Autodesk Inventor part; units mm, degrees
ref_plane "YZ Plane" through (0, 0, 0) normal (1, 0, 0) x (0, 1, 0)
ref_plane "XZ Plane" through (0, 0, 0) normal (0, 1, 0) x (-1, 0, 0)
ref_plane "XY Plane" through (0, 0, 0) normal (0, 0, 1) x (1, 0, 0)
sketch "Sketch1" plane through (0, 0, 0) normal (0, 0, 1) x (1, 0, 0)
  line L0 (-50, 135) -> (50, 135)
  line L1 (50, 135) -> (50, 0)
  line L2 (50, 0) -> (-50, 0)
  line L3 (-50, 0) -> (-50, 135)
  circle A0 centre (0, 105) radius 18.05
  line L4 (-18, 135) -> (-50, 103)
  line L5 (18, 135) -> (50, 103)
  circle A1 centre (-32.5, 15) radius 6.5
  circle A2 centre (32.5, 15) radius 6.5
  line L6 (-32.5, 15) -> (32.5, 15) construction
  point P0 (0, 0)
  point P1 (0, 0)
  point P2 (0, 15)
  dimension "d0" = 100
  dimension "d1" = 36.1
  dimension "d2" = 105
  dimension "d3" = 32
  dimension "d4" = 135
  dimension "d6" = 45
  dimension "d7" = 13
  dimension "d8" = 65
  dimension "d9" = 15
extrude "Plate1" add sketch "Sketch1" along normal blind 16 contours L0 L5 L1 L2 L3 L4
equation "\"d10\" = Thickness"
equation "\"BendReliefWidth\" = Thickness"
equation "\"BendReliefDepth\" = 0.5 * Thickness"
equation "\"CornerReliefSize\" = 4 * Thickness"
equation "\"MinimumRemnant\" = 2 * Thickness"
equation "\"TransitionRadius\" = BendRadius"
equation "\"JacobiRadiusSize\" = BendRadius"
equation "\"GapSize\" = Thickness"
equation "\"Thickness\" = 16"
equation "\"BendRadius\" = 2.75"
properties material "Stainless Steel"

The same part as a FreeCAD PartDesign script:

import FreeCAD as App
import Part
import Sketcher
Q = App.Units.Quantity

doc = App.newDocument("Part")
body = doc.addObject("PartDesign::Body", "Body")

# Sketch on XY plane
sketch1 = doc.addObject("Sketcher::SketchObject", "Sketch")
body.addObject(sketch1)
sketch1.AttachmentSupport = (doc.XY_Plane, [""])
sketch1.MapMode = "FlatFace"
sketch1.addGeometry([
    Part.LineSegment(App.Vector(18, 135, 0), App.Vector(-18, 135, 0)),  # 0
    Part.LineSegment(App.Vector(-18, 135, 0), App.Vector(-50, 103, 0)),  # 1
    Part.LineSegment(App.Vector(-50, 103, 0), App.Vector(-50, 0, 0)),  # 2
    Part.LineSegment(App.Vector(-50, 0, 0), App.Vector(50, 0, 0)),  # 3
    Part.LineSegment(App.Vector(50, 0, 0), App.Vector(50, 103, 0)),  # 4
    Part.LineSegment(App.Vector(50, 103, 0), App.Vector(18, 135, 0)),  # 5
    Part.Circle(App.Vector(-32.5, 15, 0), App.Vector(0, 0, 1), 6.5),  # 6
    Part.Circle(App.Vector(32.5, 15, 0), App.Vector(0, 0, 1), 6.5),  # 7
    Part.Circle(App.Vector(0, 105, 0), App.Vector(0, 0, 1), 18.05),  # 8
], False)
sketch1.addConstraint([
    Sketcher.Constraint("Coincident", 0, 2, 1, 1),
    Sketcher.Constraint("Coincident", 1, 2, 2, 1),
    Sketcher.Constraint("Coincident", 2, 2, 3, 1),
    Sketcher.Constraint("Coincident", 3, 2, 4, 1),
    Sketcher.Constraint("Coincident", 4, 2, 5, 1),
    Sketcher.Constraint("Coincident", 5, 2, 0, 1),
    Sketcher.Constraint("Horizontal", 0),
    Sketcher.Constraint("Vertical", 2),
    Sketcher.Constraint("Horizontal", 3),
    Sketcher.Constraint("Vertical", 4),
    Sketcher.Constraint("Equal", 6, 7),
    Sketcher.Constraint("Symmetric", 2, 2, 3, 2, -1, 1),
    Sketcher.Constraint("Symmetric", 6, 3, 7, 3, -2),
    Sketcher.Constraint("PointOnObject", 8, 3, -2),
    Sketcher.Constraint("Perpendicular", 1, 5),
    Sketcher.Constraint("Horizontal", 1, 2, 4, 2),
    Sketcher.Constraint("Equal", 1, 5),
    Sketcher.Constraint("Diameter", 6, Q("13 mm")),
    Sketcher.Constraint("Diameter", 8, Q("36.1 mm")),
    Sketcher.Constraint("DistanceX", 3, 1, 3, 2, Q("100 mm")),
    Sketcher.Constraint("DistanceY", -1, 1, 6, 3, Q("15 mm")),
    Sketcher.Constraint("DistanceY", -1, 1, 8, 3, Q("105 mm")),
    Sketcher.Constraint("DistanceY", -1, 1, 0, 2, Q("135 mm")),
    Sketcher.Constraint("DistanceX", 6, 3, 7, 3, Q("65 mm")),
    Sketcher.Constraint("DistanceX", 1, 2, 0, 2, Q("32 mm")),
])
pad1 = doc.addObject("PartDesign::Pad", "Pad")
body.addObject(pad1)
pad1.Profile = sketch1
pad1.Length = 16

doc.recompute()
